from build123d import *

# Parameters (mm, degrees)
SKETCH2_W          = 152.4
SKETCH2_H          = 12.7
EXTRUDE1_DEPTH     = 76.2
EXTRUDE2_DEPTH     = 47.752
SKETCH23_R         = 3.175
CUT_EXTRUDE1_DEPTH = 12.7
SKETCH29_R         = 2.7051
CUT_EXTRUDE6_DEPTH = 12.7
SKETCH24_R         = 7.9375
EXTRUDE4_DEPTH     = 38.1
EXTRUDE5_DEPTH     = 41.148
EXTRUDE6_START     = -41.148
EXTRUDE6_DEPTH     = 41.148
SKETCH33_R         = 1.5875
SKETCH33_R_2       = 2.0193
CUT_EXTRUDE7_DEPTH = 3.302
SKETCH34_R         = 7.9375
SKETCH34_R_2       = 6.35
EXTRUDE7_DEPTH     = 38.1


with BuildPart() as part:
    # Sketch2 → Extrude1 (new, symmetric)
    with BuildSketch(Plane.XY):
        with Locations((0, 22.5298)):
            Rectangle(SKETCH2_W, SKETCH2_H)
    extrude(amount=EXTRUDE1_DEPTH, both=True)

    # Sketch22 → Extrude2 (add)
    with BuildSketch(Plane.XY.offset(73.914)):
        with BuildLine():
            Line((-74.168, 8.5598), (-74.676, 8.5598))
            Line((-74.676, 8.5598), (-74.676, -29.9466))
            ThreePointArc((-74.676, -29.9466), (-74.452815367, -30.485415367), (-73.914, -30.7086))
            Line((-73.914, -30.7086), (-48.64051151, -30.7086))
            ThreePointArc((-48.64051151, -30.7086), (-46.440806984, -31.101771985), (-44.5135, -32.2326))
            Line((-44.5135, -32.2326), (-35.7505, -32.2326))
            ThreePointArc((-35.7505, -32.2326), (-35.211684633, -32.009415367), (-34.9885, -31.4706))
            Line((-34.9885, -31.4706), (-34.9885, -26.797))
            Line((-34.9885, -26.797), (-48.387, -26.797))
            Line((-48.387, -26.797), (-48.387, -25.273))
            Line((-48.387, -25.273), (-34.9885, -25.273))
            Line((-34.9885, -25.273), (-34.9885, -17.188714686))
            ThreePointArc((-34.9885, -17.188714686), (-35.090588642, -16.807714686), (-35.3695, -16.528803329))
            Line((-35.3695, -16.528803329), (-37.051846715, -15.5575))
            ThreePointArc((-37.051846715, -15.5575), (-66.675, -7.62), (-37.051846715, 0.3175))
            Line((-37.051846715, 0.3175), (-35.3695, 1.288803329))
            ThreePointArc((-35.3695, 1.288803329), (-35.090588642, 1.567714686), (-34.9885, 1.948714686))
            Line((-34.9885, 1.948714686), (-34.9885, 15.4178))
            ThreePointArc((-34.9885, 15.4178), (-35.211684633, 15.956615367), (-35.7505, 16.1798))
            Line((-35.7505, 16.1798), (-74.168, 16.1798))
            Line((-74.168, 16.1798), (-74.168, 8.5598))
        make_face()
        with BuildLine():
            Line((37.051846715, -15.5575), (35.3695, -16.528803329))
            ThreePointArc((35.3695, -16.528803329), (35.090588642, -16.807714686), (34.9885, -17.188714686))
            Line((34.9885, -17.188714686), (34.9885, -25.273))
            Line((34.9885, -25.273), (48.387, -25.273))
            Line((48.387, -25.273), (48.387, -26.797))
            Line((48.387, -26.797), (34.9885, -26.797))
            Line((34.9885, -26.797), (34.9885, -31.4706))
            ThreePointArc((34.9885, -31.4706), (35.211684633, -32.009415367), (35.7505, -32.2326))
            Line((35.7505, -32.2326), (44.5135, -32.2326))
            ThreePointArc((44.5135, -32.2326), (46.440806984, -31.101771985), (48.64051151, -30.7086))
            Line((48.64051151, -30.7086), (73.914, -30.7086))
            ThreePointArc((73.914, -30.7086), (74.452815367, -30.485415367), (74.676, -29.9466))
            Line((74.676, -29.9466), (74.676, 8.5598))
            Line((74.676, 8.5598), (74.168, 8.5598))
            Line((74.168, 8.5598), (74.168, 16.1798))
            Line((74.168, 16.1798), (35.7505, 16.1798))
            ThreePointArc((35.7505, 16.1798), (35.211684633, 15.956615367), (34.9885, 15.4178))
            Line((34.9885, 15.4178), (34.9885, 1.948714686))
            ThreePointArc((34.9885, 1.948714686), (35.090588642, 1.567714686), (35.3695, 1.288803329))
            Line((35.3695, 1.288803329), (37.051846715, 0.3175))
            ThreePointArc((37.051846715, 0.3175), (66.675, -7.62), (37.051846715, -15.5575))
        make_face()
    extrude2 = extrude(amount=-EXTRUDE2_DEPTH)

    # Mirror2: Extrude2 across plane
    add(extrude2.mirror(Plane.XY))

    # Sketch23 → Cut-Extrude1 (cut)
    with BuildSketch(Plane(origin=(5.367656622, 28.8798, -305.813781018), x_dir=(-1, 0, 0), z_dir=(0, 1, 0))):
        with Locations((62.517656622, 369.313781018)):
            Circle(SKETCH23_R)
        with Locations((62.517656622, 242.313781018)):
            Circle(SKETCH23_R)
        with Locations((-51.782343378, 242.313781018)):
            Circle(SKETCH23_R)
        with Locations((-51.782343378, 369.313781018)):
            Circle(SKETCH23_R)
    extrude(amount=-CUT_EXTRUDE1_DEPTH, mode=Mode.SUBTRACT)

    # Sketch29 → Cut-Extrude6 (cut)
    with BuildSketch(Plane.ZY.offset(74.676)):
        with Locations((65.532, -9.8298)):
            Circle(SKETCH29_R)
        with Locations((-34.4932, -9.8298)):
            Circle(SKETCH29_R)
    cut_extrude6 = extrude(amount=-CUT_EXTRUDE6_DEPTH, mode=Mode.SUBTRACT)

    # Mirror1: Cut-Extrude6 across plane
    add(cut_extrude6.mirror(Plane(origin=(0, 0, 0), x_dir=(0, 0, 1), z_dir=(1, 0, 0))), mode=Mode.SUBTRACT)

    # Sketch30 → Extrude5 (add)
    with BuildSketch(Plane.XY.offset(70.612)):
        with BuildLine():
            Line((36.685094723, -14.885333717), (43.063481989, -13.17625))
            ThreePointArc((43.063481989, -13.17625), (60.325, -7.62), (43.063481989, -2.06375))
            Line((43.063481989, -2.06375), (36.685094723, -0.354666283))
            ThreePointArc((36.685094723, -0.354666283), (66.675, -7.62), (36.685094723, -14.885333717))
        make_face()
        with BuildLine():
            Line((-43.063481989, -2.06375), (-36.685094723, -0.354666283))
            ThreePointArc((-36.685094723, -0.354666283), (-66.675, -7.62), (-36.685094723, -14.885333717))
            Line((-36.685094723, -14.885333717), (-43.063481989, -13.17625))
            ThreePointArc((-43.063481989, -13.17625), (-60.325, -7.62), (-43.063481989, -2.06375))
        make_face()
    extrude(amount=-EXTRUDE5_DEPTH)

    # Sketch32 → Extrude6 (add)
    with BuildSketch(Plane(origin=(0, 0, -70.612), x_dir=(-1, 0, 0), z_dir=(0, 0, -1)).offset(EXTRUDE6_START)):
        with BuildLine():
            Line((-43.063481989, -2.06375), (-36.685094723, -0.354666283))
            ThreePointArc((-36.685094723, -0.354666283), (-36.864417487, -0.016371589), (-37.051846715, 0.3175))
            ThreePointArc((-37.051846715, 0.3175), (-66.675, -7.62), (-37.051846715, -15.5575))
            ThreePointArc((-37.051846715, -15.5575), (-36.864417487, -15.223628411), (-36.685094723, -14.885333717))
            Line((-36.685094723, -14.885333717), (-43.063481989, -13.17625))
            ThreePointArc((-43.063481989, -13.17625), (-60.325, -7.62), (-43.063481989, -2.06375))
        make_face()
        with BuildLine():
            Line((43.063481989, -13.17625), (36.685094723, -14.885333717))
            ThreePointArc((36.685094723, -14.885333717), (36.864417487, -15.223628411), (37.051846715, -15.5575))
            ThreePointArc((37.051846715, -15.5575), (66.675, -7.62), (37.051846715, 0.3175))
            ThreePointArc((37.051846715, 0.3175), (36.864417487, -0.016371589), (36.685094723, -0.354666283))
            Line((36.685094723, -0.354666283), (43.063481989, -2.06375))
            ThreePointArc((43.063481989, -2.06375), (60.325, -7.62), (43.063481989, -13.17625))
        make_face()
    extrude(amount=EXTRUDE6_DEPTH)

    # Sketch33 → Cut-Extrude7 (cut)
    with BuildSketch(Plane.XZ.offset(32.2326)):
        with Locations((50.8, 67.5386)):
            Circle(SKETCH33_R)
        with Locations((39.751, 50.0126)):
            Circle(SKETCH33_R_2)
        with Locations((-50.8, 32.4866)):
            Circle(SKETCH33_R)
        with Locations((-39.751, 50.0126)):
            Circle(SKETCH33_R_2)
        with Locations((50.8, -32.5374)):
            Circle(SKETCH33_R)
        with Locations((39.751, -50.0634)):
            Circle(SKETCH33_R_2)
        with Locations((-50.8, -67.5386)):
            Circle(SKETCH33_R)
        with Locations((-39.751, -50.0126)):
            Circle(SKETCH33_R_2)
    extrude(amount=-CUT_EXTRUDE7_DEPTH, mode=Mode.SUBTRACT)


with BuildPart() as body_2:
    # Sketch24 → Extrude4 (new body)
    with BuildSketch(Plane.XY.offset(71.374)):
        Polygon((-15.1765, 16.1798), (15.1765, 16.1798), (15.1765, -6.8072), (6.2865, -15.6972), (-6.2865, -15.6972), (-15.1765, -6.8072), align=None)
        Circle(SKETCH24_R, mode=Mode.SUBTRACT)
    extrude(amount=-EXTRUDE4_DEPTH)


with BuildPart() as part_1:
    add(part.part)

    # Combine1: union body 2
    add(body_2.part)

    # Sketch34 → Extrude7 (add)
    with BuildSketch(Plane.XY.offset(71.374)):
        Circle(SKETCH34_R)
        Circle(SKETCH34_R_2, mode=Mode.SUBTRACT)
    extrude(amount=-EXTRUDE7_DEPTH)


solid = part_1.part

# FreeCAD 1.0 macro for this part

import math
import FreeCAD as App
import Part
import Sketcher

V = App.Vector
Q = App.Units.Quantity

doc = App.newDocument("Part")
body = doc.addObject("PartDesign::Body", "Body")

# Sketch on XY plane
sketch1 = body.newObject("Sketcher::SketchObject", "Sketch")
sketch1.AttachmentSupport = (doc.getObject("XY_Plane"), [""])
sketch1.MapMode = "FlatFace"
sketch1.addGeometry([
    Part.LineSegment(V(-76.2, 28.8798, 0), V(-76.2, 16.1798, 0)),
    Part.LineSegment(V(-76.2, 16.1798, 0), V(76.2, 16.1798, 0)),
    Part.LineSegment(V(76.2, 16.1798, 0), V(76.2, 28.8798, 0)),
    Part.LineSegment(V(76.2, 28.8798, 0), V(-76.2, 28.8798, 0)),
], False)
sketch1.addConstraint([
    Sketcher.Constraint("Coincident", 0, 2, 1, 1),
    Sketcher.Constraint("Coincident", 1, 2, 2, 1),
    Sketcher.Constraint("Coincident", 2, 2, 3, 1),
    Sketcher.Constraint("Coincident", 3, 2, 0, 1),
    Sketcher.Constraint("Vertical", 0),
    Sketcher.Constraint("Horizontal", 1),
    Sketcher.Constraint("Vertical", 2),
    Sketcher.Constraint("Horizontal", 3),
    Sketcher.Constraint("DistanceX", 1, 1, 1, 2, Q("6 in")),
    Sketcher.Constraint("DistanceY", 0, 2, 0, 1, Q("0.5 in")),
    Sketcher.Constraint("DistanceX", 0, 2, -1, 1, Q("3 in")),
    Sketcher.Constraint("DistanceY", -1, 1, 0, 2, Q("0.637 in")),
])
pad1 = body.newObject("PartDesign::Pad", "Pad")
pad1.Profile = sketch1
pad1.Length = Q("6 in")
pad1.Midplane = True

# Sketch on XY plane
sketch2 = body.newObject("Sketcher::SketchObject", "Sketch001")
sketch2.AttachmentSupport = (doc.getObject("XY_Plane"), [""])
sketch2.MapMode = "FlatFace"
sketch2.AttachmentOffset = App.Placement(V(0, 0, 2.91 * 25.4), App.Rotation())
sketch2.addGeometry([
    Part.LineSegment(V(-74.168, 8.5598, 0), V(-74.676, 8.5598, 0)),  # 0
    Part.LineSegment(V(-74.676, 8.5598, 0), V(-74.676, -29.9466, 0)),  # 1
    Part.ArcOfCircle(Part.Circle(V(-73.914, -29.9466, 0), V(0, 0, 1), 0.762), math.radians(-180), math.radians(-90)),  # 2
    Part.LineSegment(V(-73.914, -30.7086, 0), V(-48.640512, -30.7086, 0)),  # 3
    Part.ArcOfCircle(Part.Circle(V(-48.640512, -37.0586, 0), V(0, 0, 1), 6.35), math.radians(49.464198), math.radians(90)),  # 4
    Part.LineSegment(V(-44.5135, -32.2326, 0), V(-35.7505, -32.2326, 0)),  # 5
    Part.ArcOfCircle(Part.Circle(V(-35.7505, -31.4706, 0), V(0, 0, 1), 0.762), math.radians(-90), math.radians(0)),  # 6
    Part.LineSegment(V(-34.9885, -31.4706, 0), V(-34.9885, -26.797, 0)),  # 7
    Part.LineSegment(V(-34.9885, -26.797, 0), V(-48.387, -26.797, 0)),  # 8
    Part.LineSegment(V(-48.387, -26.797, 0), V(-48.387, -25.273, 0)),  # 9
    Part.LineSegment(V(-48.387, -25.273, 0), V(-34.9885, -25.273, 0)),  # 10
    Part.LineSegment(V(-34.9885, -25.273, 0), V(-34.9885, -17.188715, 0)),  # 11
    Part.ArcOfCircle(Part.Circle(V(-35.7505, -17.188715, 0), V(0, 0, 1), 0.762), math.radians(0), math.radians(60)),  # 12
    Part.LineSegment(V(-35.3695, -16.528803, 0), V(-37.051847, -15.5575, 0)),  # 13
    Part.ArcOfCircle(Part.Circle(V(-50.8, -7.62, 0), V(0, 0, 1), 15.875), math.radians(30), math.radians(330)),  # 14
    Part.LineSegment(V(-37.051847, 0.3175, 0), V(-35.3695, 1.288803, 0)),  # 15
    Part.ArcOfCircle(Part.Circle(V(-35.7505, 1.948715, 0), V(0, 0, 1), 0.762), math.radians(-60), math.radians(0)),  # 16
    Part.LineSegment(V(-34.9885, 1.948715, 0), V(-34.9885, 15.4178, 0)),  # 17
    Part.ArcOfCircle(Part.Circle(V(-35.7505, 15.4178, 0), V(0, 0, 1), 0.762), math.radians(0), math.radians(90)),  # 18
    Part.LineSegment(V(-35.7505, 16.1798, 0), V(-74.168, 16.1798, 0)),  # 19
    Part.LineSegment(V(-74.168, 16.1798, 0), V(-74.168, 8.5598, 0)),  # 20
    Part.LineSegment(V(37.051847, -15.5575, 0), V(35.3695, -16.528803, 0)),  # 21
    Part.ArcOfCircle(Part.Circle(V(35.7505, -17.188715, 0), V(0, 0, 1), 0.762), math.radians(120), math.radians(180)),  # 22
    Part.LineSegment(V(34.9885, -17.188715, 0), V(34.9885, -25.273, 0)),  # 23
    Part.LineSegment(V(34.9885, -25.273, 0), V(48.387, -25.273, 0)),  # 24
    Part.LineSegment(V(48.387, -25.273, 0), V(48.387, -26.797, 0)),  # 25
    Part.LineSegment(V(48.387, -26.797, 0), V(34.9885, -26.797, 0)),  # 26
    Part.LineSegment(V(34.9885, -26.797, 0), V(34.9885, -31.4706, 0)),  # 27
    Part.ArcOfCircle(Part.Circle(V(35.7505, -31.4706, 0), V(0, 0, 1), 0.762), math.radians(-180), math.radians(-90)),  # 28
    Part.LineSegment(V(35.7505, -32.2326, 0), V(44.5135, -32.2326, 0)),  # 29
    Part.ArcOfCircle(Part.Circle(V(48.640512, -37.0586, 0), V(0, 0, 1), 6.35), math.radians(90), math.radians(130.535802)),  # 30
    Part.LineSegment(V(48.640512, -30.7086, 0), V(73.914, -30.7086, 0)),  # 31
    Part.ArcOfCircle(Part.Circle(V(73.914, -29.9466, 0), V(0, 0, 1), 0.762), math.radians(-90), math.radians(0)),  # 32
    Part.LineSegment(V(74.676, -29.9466, 0), V(74.676, 8.5598, 0)),  # 33
    Part.LineSegment(V(74.676, 8.5598, 0), V(74.168, 8.5598, 0)),  # 34
    Part.LineSegment(V(74.168, 8.5598, 0), V(74.168, 16.1798, 0)),  # 35
    Part.LineSegment(V(74.168, 16.1798, 0), V(35.7505, 16.1798, 0)),  # 36
    Part.ArcOfCircle(Part.Circle(V(35.7505, 15.4178, 0), V(0, 0, 1), 0.762), math.radians(90), math.radians(180)),  # 37
    Part.LineSegment(V(34.9885, 15.4178, 0), V(34.9885, 1.948715, 0)),  # 38
    Part.ArcOfCircle(Part.Circle(V(35.7505, 1.948715, 0), V(0, 0, 1), 0.762), math.radians(180), math.radians(240)),  # 39
    Part.LineSegment(V(35.3695, 1.288803, 0), V(37.051847, 0.3175, 0)),  # 40
    Part.ArcOfCircle(Part.Circle(V(50.8, -7.62, 0), V(0, 0, 1), 15.875), math.radians(-150), math.radians(150)),  # 41
], False)
sketch2.addConstraint([
    Sketcher.Constraint("Coincident", 0, 2, 1, 1),
    Sketcher.Constraint("Tangent", 1, 2, 2, 1),
    Sketcher.Constraint("Tangent", 2, 2, 3, 1),
    Sketcher.Constraint("Tangent", 3, 2, 4, 2),
    Sketcher.Constraint("Coincident", 4, 1, 5, 1),
    Sketcher.Constraint("Tangent", 5, 2, 6, 1),
    Sketcher.Constraint("Tangent", 6, 2, 7, 1),
    Sketcher.Constraint("Coincident", 7, 2, 8, 1),
    Sketcher.Constraint("Coincident", 8, 2, 9, 1),
    Sketcher.Constraint("Coincident", 9, 2, 10, 1),
    Sketcher.Constraint("Coincident", 10, 2, 11, 1),
    Sketcher.Constraint("Tangent", 11, 2, 12, 1),
    Sketcher.Constraint("Tangent", 12, 2, 13, 1),
    Sketcher.Constraint("Coincident", 13, 2, 14, 2),
    Sketcher.Constraint("Coincident", 14, 1, 15, 1),
    Sketcher.Constraint("Tangent", 15, 2, 16, 1),
    Sketcher.Constraint("Tangent", 16, 2, 17, 1),
    Sketcher.Constraint("Tangent", 17, 2, 18, 1),
    Sketcher.Constraint("Tangent", 18, 2, 19, 1),
    Sketcher.Constraint("Coincident", 19, 2, 20, 1),
    Sketcher.Constraint("Coincident", 20, 2, 0, 1),
    Sketcher.Constraint("Tangent", 21, 2, 22, 1),
    Sketcher.Constraint("Tangent", 22, 2, 23, 1),
    Sketcher.Constraint("Coincident", 23, 2, 24, 1),
    Sketcher.Constraint("Coincident", 24, 2, 25, 1),
    Sketcher.Constraint("Coincident", 25, 2, 26, 1),
    Sketcher.Constraint("Coincident", 26, 2, 27, 1),
    Sketcher.Constraint("Tangent", 27, 2, 28, 1),
    Sketcher.Constraint("Tangent", 28, 2, 29, 1),
    Sketcher.Constraint("Coincident", 29, 2, 30, 2),
    Sketcher.Constraint("Tangent", 30, 1, 31, 1),
    Sketcher.Constraint("Tangent", 31, 2, 32, 1),
    Sketcher.Constraint("Tangent", 32, 2, 33, 1),
    Sketcher.Constraint("Coincident", 33, 2, 34, 1),
    Sketcher.Constraint("Coincident", 34, 2, 35, 1),
    Sketcher.Constraint("Coincident", 35, 2, 36, 1),
    Sketcher.Constraint("Tangent", 36, 2, 37, 1),
    Sketcher.Constraint("Tangent", 37, 2, 38, 1),
    Sketcher.Constraint("Tangent", 38, 2, 39, 1),
    Sketcher.Constraint("Tangent", 39, 2, 40, 1),
    Sketcher.Constraint("Coincident", 40, 2, 41, 2),
    Sketcher.Constraint("Coincident", 41, 1, 21, 1),
    Sketcher.Constraint("Horizontal", 0),
    Sketcher.Constraint("Vertical", 1),
    Sketcher.Constraint("Horizontal", 3),
    Sketcher.Constraint("Horizontal", 5),
    Sketcher.Constraint("Vertical", 7),
    Sketcher.Constraint("Horizontal", 8),
    Sketcher.Constraint("Vertical", 9),
    Sketcher.Constraint("Horizontal", 10),
    Sketcher.Constraint("Vertical", 11),
    Sketcher.Constraint("Vertical", 17),
    Sketcher.Constraint("Horizontal", 19),
    Sketcher.Constraint("Vertical", 20),
    Sketcher.Constraint("Vertical", 23),
    Sketcher.Constraint("Horizontal", 24),
    Sketcher.Constraint("Vertical", 25),
    Sketcher.Constraint("Horizontal", 26),
    Sketcher.Constraint("Vertical", 27),
    Sketcher.Constraint("Horizontal", 29),
    Sketcher.Constraint("Horizontal", 31),
    Sketcher.Constraint("Vertical", 33),
    Sketcher.Constraint("Horizontal", 34),
    Sketcher.Constraint("Vertical", 35),
    Sketcher.Constraint("Horizontal", 36),
    Sketcher.Constraint("Vertical", 38),
    Sketcher.Constraint("Equal", 2, 6),
    Sketcher.Constraint("Equal", 6, 12),
    Sketcher.Constraint("Equal", 12, 16),
    Sketcher.Constraint("Equal", 16, 18),
    Sketcher.Constraint("Equal", 18, 22),
    Sketcher.Constraint("Equal", 22, 28),
    Sketcher.Constraint("Equal", 4, 30),
    Sketcher.Constraint("Equal", 28, 32),
    Sketcher.Constraint("Equal", 32, 37),
    Sketcher.Constraint("Equal", 37, 39),
    Sketcher.Constraint("Equal", 14, 41),
    Sketcher.Constraint("Symmetric", 12, 3, 22, 3, -2),
    Sketcher.Constraint("Symmetric", 6, 3, 28, 3, -2),
    Sketcher.Constraint("Symmetric", 4, 3, 30, 3, -2),
    Sketcher.Constraint("Symmetric", 18, 3, 37, 3, -2),
    Sketcher.Constraint("Symmetric", 14, 3, 41, 3, -2),
    Sketcher.Constraint("Symmetric", 9, 2, 24, 2, -2),
    Sketcher.Constraint("Symmetric", 0, 2, 33, 2, -2),
    Sketcher.Constraint("Symmetric", 15, 2, 39, 2, -2),
    Sketcher.Constraint("Parallel", 15, 21),
    Sketcher.Constraint("Parallel", 13, 40),
    Sketcher.Constraint("Horizontal", 8, 2, 25, 2),
    Sketcher.Constraint("Vertical", 6, 3, 12, 3),
    Sketcher.Constraint("Vertical", 12, 3, 16, 3),
    Sketcher.Constraint("Vertical", 13, 2, 14, 1),
    Sketcher.Constraint("Equal", 0, 34),
    Sketcher.Constraint("Radius", 2, Q("0.03 in")),
    Sketcher.Constraint("Radius", 4, Q("0.25 in")),
    Sketcher.Constraint("DistanceY", 20, 2, 20, 1, Q("0.3 in")),
    Sketcher.Constraint("DistanceX", 14, 3, -1, 1, Q("2 in")),
    Sketcher.Constraint("Angle", 13, Q("150 deg")),
    Sketcher.Constraint("Radius", 14, Q("0.625 in")),
    Sketcher.Constraint("DistanceX", 0, 2, 0, 1, Q("0.02 in")),
    Sketcher.Constraint("DistanceY", 9, 1, 9, 2, Q("0.06 in")),
    Sketcher.Constraint("DistanceY", 14, 3, -1, 1, Q("0.3 in")),
    Sketcher.Constraint("DistanceX", 5, 1, 5, 2, Q("0.345 in")),
    Sketcher.Constraint("DistanceY", 1, 2, 1, 1, Q("1.516 in")),
    Sketcher.Constraint("DistanceY", 7, 1, 7, 2, Q("0.184 in")),
    Sketcher.Constraint("DistanceX", 2, 3, -1, 1, Q("2.91 in")),
    Sketcher.Constraint("DistanceY", 4, 3, 6, 3, Q("0.22 in")),
    Sketcher.Constraint("DistanceX", 8, 2, 8, 1, Q("0.5275 in")),
    Sketcher.Constraint("DistanceX", 19, 2, 19, 1, Q("1.5125 in")),
    Sketcher.Constraint("DistanceY", 2, 3, -1, 1, Q("1.179 in")),
    Sketcher.Constraint("DistanceY", 14, 3, 14, 1, Q("0.3125 in")),
])
pad2 = body.newObject("PartDesign::Pad", "Pad001")
pad2.Profile = sketch2
pad2.Length = Q("1.88 in")
pad2.Reversed = True
doc.recompute()

mirrored = body.newObject("PartDesign::Mirrored", "Mirrored")
mirrored.Originals = [pad2]
mirrored.MirrorPlane = (doc.getObject("XY_Plane"), [""])
body.Tip = mirrored

# Sketch on XZ plane
sketch3 = body.newObject("Sketcher::SketchObject", "Sketch002")
sketch3.AttachmentSupport = (doc.getObject("XZ_Plane"), [""])
sketch3.MapMode = "FlatFace"
sketch3.AttachmentOffset = App.Placement(V(0, 0, -1.137 * 25.4), App.Rotation())
sketch3.addGeometry([
    Part.Circle(V(-57.15, 63.5, 0), V(0, 0, 1), 3.175),
    Part.Circle(V(-57.15, -63.5, 0), V(0, 0, 1), 3.175),
    Part.Circle(V(57.15, -63.5, 0), V(0, 0, 1), 3.175),
    Part.Circle(V(57.15, 63.5, 0), V(0, 0, 1), 3.175),
], False)
sketch3.addConstraint([
    Sketcher.Constraint("Equal", 0, 1),
    Sketcher.Constraint("Equal", 1, 2),
    Sketcher.Constraint("Equal", 2, 3),
    Sketcher.Constraint("Symmetric", 0, 3, 2, 3, -1, 1),
    Sketcher.Constraint("Symmetric", 1, 3, 3, 3, -1, 1),
    Sketcher.Constraint("Symmetric", 1, 3, 2, 3, -2),
    Sketcher.Constraint("Diameter", 0, Q("0.25 in")),
    Sketcher.Constraint("DistanceY", 1, 3, 0, 3, Q("5 in")),
    Sketcher.Constraint("DistanceX", 1, 3, 2, 3, Q("4.5 in")),
])
pocket1 = body.newObject("PartDesign::Pocket", "Pocket")
pocket1.Profile = sketch3
pocket1.Length = Q("0.5 in")
pocket1.Reversed = True

# Sketch on YZ plane
sketch4 = body.newObject("Sketcher::SketchObject", "Sketch003")
sketch4.AttachmentSupport = (doc.getObject("YZ_Plane"), [""])
sketch4.MapMode = "FlatFace"
sketch4.AttachmentOffset = App.Placement(V(0, 0, -2.94 * 25.4), App.Rotation())
sketch4.addGeometry([
    Part.Circle(V(-9.8298, 65.532, 0), V(0, 0, 1), 2.7051),
    Part.Circle(V(-9.8298, -34.4932, 0), V(0, 0, 1), 2.7051),
], False)
sketch4.addConstraint([
    Sketcher.Constraint("Equal", 0, 1),
    Sketcher.Constraint("Vertical", 0, 3, 1, 3),
    Sketcher.Constraint("Diameter", 0, Q("0.213 in")),
    Sketcher.Constraint("DistanceY", -1, 1, 0, 3, Q("2.58 in")),
    Sketcher.Constraint("DistanceX", 0, 3, -1, 1, Q("0.387 in")),
    Sketcher.Constraint("DistanceY", 1, 3, -1, 1, Q("1.358 in")),
])
pocket2 = body.newObject("PartDesign::Pocket", "Pocket001")
pocket2.Profile = sketch4
pocket2.Length = Q("0.5 in")
pocket2.Reversed = True
doc.recompute()

mirrored2 = body.newObject("PartDesign::Mirrored", "Mirrored001")
mirrored2.Originals = [pocket2]
mirrored2.MirrorPlane = (doc.getObject("YZ_Plane"), [""])
body.Tip = mirrored2

# Sketch on XY plane
sketch5 = body.newObject("Sketcher::SketchObject", "Sketch004")
sketch5.AttachmentSupport = (doc.getObject("XY_Plane"), [""])
sketch5.MapMode = "FlatFace"
sketch5.AttachmentOffset = App.Placement(V(0, 0, 2.78 * 25.4), App.Rotation())
sketch5.addGeometry([
    Part.LineSegment(V(43.063482, -13.17625, 0), V(36.685095, -14.885334, 0)),  # 0
    Part.ArcOfCircle(Part.Circle(V(50.8, -7.62, 0), V(0, 0, 1), 15.875), math.radians(-152.763862), math.radians(152.763862)),  # 1
    Part.LineSegment(V(36.685095, -0.354666, 0), V(43.063482, -2.06375, 0)),  # 2
    Part.ArcOfCircle(Part.Circle(V(50.8, -7.62, 0), V(0, 0, 1), 9.525), math.radians(-144.314665), math.radians(144.314665)),  # 3
    Part.LineSegment(V(-43.063482, -2.06375, 0), V(-36.685095, -0.354666, 0)),  # 4
    Part.ArcOfCircle(Part.Circle(V(-50.8, -7.62, 0), V(0, 0, 1), 15.875), math.radians(27.236138), math.radians(332.763862)),  # 5
    Part.LineSegment(V(-36.685095, -14.885334, 0), V(-43.063482, -13.17625, 0)),  # 6
    Part.ArcOfCircle(Part.Circle(V(-50.8, -7.62, 0), V(0, 0, 1), 9.525), math.radians(35.685335), math.radians(324.314665)),  # 7
], False)
sketch5.addConstraint([
    Sketcher.Constraint("Coincident", 0, 2, 1, 1),
    Sketcher.Constraint("Coincident", 1, 2, 2, 1),
    Sketcher.Constraint("Coincident", 2, 2, 3, 2),
    Sketcher.Constraint("Coincident", 3, 1, 0, 1),
    Sketcher.Constraint("Coincident", 4, 2, 5, 1),
    Sketcher.Constraint("Coincident", 5, 2, 6, 1),
    Sketcher.Constraint("Coincident", 6, 2, 7, 2),
    Sketcher.Constraint("Coincident", 7, 1, 4, 1),
    Sketcher.Constraint("Coincident", 3, 3, 1, 3),
    Sketcher.Constraint("Coincident", 7, 3, 5, 3),
    Sketcher.Constraint("Equal", 1, 5),
    Sketcher.Constraint("Equal", 3, 7),
    Sketcher.Constraint("Symmetric", 1, 3, 5, 3, -2),
    Sketcher.Constraint("Parallel", 0, 4),
    Sketcher.Constraint("Parallel", 2, 6),
    Sketcher.Constraint("Horizontal", 1, 2, 4, 2),
    Sketcher.Constraint("Horizontal", 0, 2, 5, 2),
    Sketcher.Constraint("Horizontal", 3, 1, 6, 2),
    Sketcher.Constraint("Vertical", 0, 2, 1, 2),
    Sketcher.Constraint("DistanceX", -1, 1, 1, 3, Q("2 in")),
    Sketcher.Constraint("Angle", 0, Q("-165 deg")),
    Sketcher.Constraint("Radius", 1, Q("0.625 in")),
    Sketcher.Constraint("Radius", 3, Q("0.375 in")),
    Sketcher.Constraint("DistanceY", 1, 3, -1, 1, Q("0.3 in")),
    Sketcher.Constraint("DistanceY", 1, 3, 2, 2, Q("0.21875 in")),
])
pad3 = body.newObject("PartDesign::Pad", "Pad002")
pad3.Profile = sketch5
pad3.Length = Q("1.62 in")
pad3.Reversed = True

# Sketch on XY plane
sketch6 = body.newObject("Sketcher::SketchObject", "Sketch005")
sketch6.AttachmentSupport = (doc.getObject("XY_Plane"), [""])
sketch6.MapMode = "FlatFace"
sketch6.AttachmentOffset = App.Placement(V(0, 0, -1.16 * 25.4), App.Rotation())
sketch6.addGeometry([
    Part.LineSegment(V(43.063482, -2.06375, 0), V(36.685095, -0.354666, 0)),  # 0
    Part.ArcOfCircle(Part.Circle(V(50.800001, -7.62, 0), V(0, 0, 1), 15.875001), math.radians(150), math.radians(152.763862)),  # 1
    Part.ArcOfCircle(Part.Circle(V(50.8, -7.62, 0), V(0, 0, 1), 15.875), math.radians(-150), math.radians(150)),  # 2
    Part.ArcOfCircle(Part.Circle(V(50.800001, -7.62, 0), V(0, 0, 1), 15.875001), math.radians(-152.763862), math.radians(-150)),  # 3
    Part.LineSegment(V(36.685095, -14.885334, 0), V(43.063482, -13.17625, 0)),  # 4
    Part.ArcOfCircle(Part.Circle(V(50.8, -7.62, 0), V(0, 0, 1), 9.525), math.radians(-144.314665), math.radians(144.314665)),  # 5
    Part.LineSegment(V(-43.063482, -13.17625, 0), V(-36.685095, -14.885334, 0)),  # 6
    Part.ArcOfCircle(Part.Circle(V(-50.800001, -7.62, 0), V(0, 0, 1), 15.875001), math.radians(-30), math.radians(-27.236138)),  # 7
    Part.ArcOfCircle(Part.Circle(V(-50.8, -7.62, 0), V(0, 0, 1), 15.875), math.radians(30), math.radians(330)),  # 8
    Part.ArcOfCircle(Part.Circle(V(-50.800001, -7.62, 0), V(0, 0, 1), 15.875001), math.radians(27.236138), math.radians(30)),  # 9
    Part.LineSegment(V(-36.685095, -0.354666, 0), V(-43.063482, -2.06375, 0)),  # 10
    Part.ArcOfCircle(Part.Circle(V(-50.8, -7.62, 0), V(0, 0, 1), 9.525), math.radians(35.685335), math.radians(324.314665)),  # 11
], False)
sketch6.addConstraint([
    Sketcher.Constraint("Coincident", 0, 2, 1, 2),
    Sketcher.Constraint("Tangent", 1, 1, 2, 2),
    Sketcher.Constraint("Tangent", 2, 1, 3, 2),
    Sketcher.Constraint("Coincident", 3, 1, 4, 1),
    Sketcher.Constraint("Coincident", 4, 2, 5, 1),
    Sketcher.Constraint("Coincident", 5, 2, 0, 1),
    Sketcher.Constraint("Coincident", 6, 2, 7, 2),
    Sketcher.Constraint("Tangent", 7, 1, 8, 2),
    Sketcher.Constraint("Tangent", 8, 1, 9, 2),
    Sketcher.Constraint("Coincident", 9, 1, 10, 1),
    Sketcher.Constraint("Coincident", 10, 2, 11, 1),
    Sketcher.Constraint("Coincident", 11, 2, 6, 1),
    Sketcher.Constraint("Coincident", 3, 3, 1, 3),
    Sketcher.Constraint("Coincident", 5, 3, 1, 3),
    Sketcher.Constraint("Coincident", 9, 3, 7, 3),
    Sketcher.Constraint("Coincident", 11, 3, 7, 3),
    Sketcher.Constraint("Equal", 3, 7),
    Sketcher.Constraint("Equal", 5, 11),
    Sketcher.Constraint("Symmetric", 1, 3, 7, 3, -2),
    Sketcher.Constraint("Parallel", 0, 6),
    Sketcher.Constraint("Parallel", 4, 10),
    Sketcher.Constraint("Horizontal", 3, 1, 6, 2),
    Sketcher.Constraint("Horizontal", 2, 1, 7, 1),
    Sketcher.Constraint("Horizontal", 1, 1, 8, 1),
    Sketcher.Constraint("Horizontal", 0, 2, 9, 1),
    Sketcher.Constraint("Horizontal", 5, 2, 10, 2),
    Sketcher.Constraint("Vertical", 1, 1, 2, 1),
    Sketcher.Constraint("Vertical", 0, 2, 3, 1),
    Sketcher.Constraint("DistanceX", -1, 1, 1, 3, Q("2 in")),
    Sketcher.Constraint("Angle", 0, Q("165 deg")),
    Sketcher.Constraint("Radius", 1, Q("0.625 in")),
    Sketcher.Constraint("Radius", 5, Q("0.375 in")),
    Sketcher.Constraint("DistanceY", 1, 3, -1, 1, Q("0.3 in")),
    Sketcher.Constraint("DistanceY", 2, 3, 1, 1, Q("0.3125 in")),
    Sketcher.Constraint("DistanceY", 2, 1, 4, 2, Q("0.09375 in")),
])
pad4 = body.newObject("PartDesign::Pad", "Pad003")
pad4.Profile = sketch6
pad4.Length = Q("1.62 in")
pad4.Reversed = True

# Sketch on XZ plane
sketch7 = body.newObject("Sketcher::SketchObject", "Sketch006")
sketch7.AttachmentSupport = (doc.getObject("XZ_Plane"), [""])
sketch7.MapMode = "FlatFace"
sketch7.AttachmentOffset = App.Placement(V(0, 0, 1.269 * 25.4), App.Rotation())
sketch7.addGeometry([
    Part.Circle(V(50.8, 67.5386, 0), V(0, 0, 1), 1.5875),  # 0
    Part.Circle(V(39.751, 50.0126, 0), V(0, 0, 1), 2.0193),  # 1
    Part.Circle(V(-50.8, 32.4866, 0), V(0, 0, 1), 1.5875),  # 2
    Part.Circle(V(-39.751, 50.0126, 0), V(0, 0, 1), 2.0193),  # 3
    Part.Circle(V(50.8, -32.5374, 0), V(0, 0, 1), 1.5875),  # 4
    Part.Circle(V(39.751, -50.0634, 0), V(0, 0, 1), 2.0193),  # 5
    Part.Circle(V(-50.8, -67.5386, 0), V(0, 0, 1), 1.5875),  # 6
    Part.Circle(V(-39.751, -50.0126, 0), V(0, 0, 1), 2.0193),  # 7
], False)
sketch7.addConstraint([
    Sketcher.Constraint("Equal", 0, 2),
    Sketcher.Constraint("Equal", 1, 3),
    Sketcher.Constraint("Equal", 2, 4),
    Sketcher.Constraint("Equal", 3, 5),
    Sketcher.Constraint("Equal", 4, 6),
    Sketcher.Constraint("Equal", 5, 7),
    Sketcher.Constraint("Symmetric", 0, 3, 6, 3, -1, 1),
    Sketcher.Constraint("Symmetric", 1, 3, 7, 3, -1, 1),
    Sketcher.Constraint("Symmetric", 1, 3, 3, 3, -2),
    Sketcher.Constraint("Vertical", 0, 3, 4, 3),
    Sketcher.Constraint("Vertical", 1, 3, 5, 3),
    Sketcher.Constraint("Vertical", 2, 3, 6, 3),
    Sketcher.Constraint("Diameter", 0, Q("0.125 in")),
    Sketcher.Constraint("Diameter", 1, Q("0.159 in")),
    Sketcher.Constraint("DistanceX", -1, 1, 0, 3, Q("2 in")),
    Sketcher.Constraint("DistanceY", 1, 3, 0, 3, Q("0.69 in")),
    Sketcher.Constraint("DistanceY", 2, 3, 1, 3, Q("0.69 in")),
    Sketcher.Constraint("DistanceX", 3, 3, 1, 3, Q("3.13 in")),
    Sketcher.Constraint("DistanceY", 4, 3, 1, 3, Q("3.25 in")),
    Sketcher.Constraint("DistanceY", 5, 3, 4, 3, Q("0.69 in")),
    Sketcher.Constraint("DistanceY", -1, 1, 0, 3, Q("2.659 in")),
])
pocket3 = body.newObject("PartDesign::Pocket", "Pocket002")
pocket3.Profile = sketch7
pocket3.Length = Q("0.13 in")
body2 = doc.addObject("PartDesign::Body", "Body001")

# Sketch on XY plane
sketch8 = body2.newObject("Sketcher::SketchObject", "Sketch007")
sketch8.AttachmentSupport = (doc.getObject("XY_Plane001"), [""])
sketch8.MapMode = "FlatFace"
sketch8.AttachmentOffset = App.Placement(V(0, 0, 2.81 * 25.4), App.Rotation())
sketch8.addGeometry([
    Part.LineSegment(V(15.1765, 16.1798, 0), V(-15.1765, 16.1798, 0)),  # 0
    Part.LineSegment(V(-15.1765, 16.1798, 0), V(-15.1765, -6.8072, 0)),  # 1
    Part.LineSegment(V(-15.1765, -6.8072, 0), V(-6.2865, -15.6972, 0)),  # 2
    Part.LineSegment(V(-6.2865, -15.6972, 0), V(6.2865, -15.6972, 0)),  # 3
    Part.LineSegment(V(6.2865, -15.6972, 0), V(15.1765, -6.8072, 0)),  # 4
    Part.LineSegment(V(15.1765, -6.8072, 0), V(15.1765, 16.1798, 0)),  # 5
    Part.Circle(V(0, 0, 0), V(0, 0, 1), 7.9375),  # 6
], False)
sketch8.addConstraint([
    Sketcher.Constraint("Coincident", 0, 2, 1, 1),
    Sketcher.Constraint("Coincident", 1, 2, 2, 1),
    Sketcher.Constraint("Coincident", 2, 2, 3, 1),
    Sketcher.Constraint("Coincident", 3, 2, 4, 1),
    Sketcher.Constraint("Coincident", 4, 2, 5, 1),
    Sketcher.Constraint("Coincident", 5, 2, 0, 1),
    Sketcher.Constraint("Horizontal", 0),
    Sketcher.Constraint("Vertical", 1),
    Sketcher.Constraint("Horizontal", 3),
    Sketcher.Constraint("Vertical", 5),
    Sketcher.Constraint("Coincident", 6, 3, -1, 1),
    Sketcher.Constraint("Symmetric", 1, 2, 4, 2, -2),
    Sketcher.Constraint("Perpendicular", 2, 4),
    Sketcher.Constraint("Equal", 2, 4),
    Sketcher.Constraint("Diameter", 6, Q("0.625 in")),
    Sketcher.Constraint("DistanceX", 0, 2, 0, 1, Q("1.195 in")),
    Sketcher.Constraint("DistanceX", 3, 1, 3, 2, Q("0.495 in")),
    Sketcher.Constraint("DistanceY", 1, 2, 1, 1, Q("0.905 in")),
    Sketcher.Constraint("DistanceY", -1, 1, 0, 2, Q("0.637 in")),
])
pad5 = body2.newObject("PartDesign::Pad", "Pad004")
pad5.Profile = sketch8
pad5.Length = Q("1.5 in")
pad5.Reversed = True
doc.recompute()

boolean = body.newObject("PartDesign::Boolean", "Boolean")
boolean.Type = "Fuse"
boolean.addObjects([body2])

# Sketch on XY plane
sketch9 = body.newObject("Sketcher::SketchObject", "Sketch008")
sketch9.AttachmentSupport = (doc.getObject("XY_Plane"), [""])
sketch9.MapMode = "FlatFace"
sketch9.AttachmentOffset = App.Placement(V(0, 0, 2.81 * 25.4), App.Rotation())
sketch9.addGeometry([
    Part.Circle(V(0, 0, 0), V(0, 0, 1), 7.9375),
    Part.Circle(V(0, 0, 0), V(0, 0, 1), 6.35),
], False)
sketch9.addConstraint([
    Sketcher.Constraint("Coincident", 0, 3, -1, 1),
    Sketcher.Constraint("Coincident", 1, 3, -1, 1),
    Sketcher.Constraint("Diameter", 1, Q("0.5 in")),
    Sketcher.Constraint("Diameter", 0, Q("0.625 in")),
])
pad6 = body.newObject("PartDesign::Pad", "Pad005")
pad6.Profile = sketch9
pad6.Length = Q("1.5 in")
pad6.Reversed = True

doc.recompute()
